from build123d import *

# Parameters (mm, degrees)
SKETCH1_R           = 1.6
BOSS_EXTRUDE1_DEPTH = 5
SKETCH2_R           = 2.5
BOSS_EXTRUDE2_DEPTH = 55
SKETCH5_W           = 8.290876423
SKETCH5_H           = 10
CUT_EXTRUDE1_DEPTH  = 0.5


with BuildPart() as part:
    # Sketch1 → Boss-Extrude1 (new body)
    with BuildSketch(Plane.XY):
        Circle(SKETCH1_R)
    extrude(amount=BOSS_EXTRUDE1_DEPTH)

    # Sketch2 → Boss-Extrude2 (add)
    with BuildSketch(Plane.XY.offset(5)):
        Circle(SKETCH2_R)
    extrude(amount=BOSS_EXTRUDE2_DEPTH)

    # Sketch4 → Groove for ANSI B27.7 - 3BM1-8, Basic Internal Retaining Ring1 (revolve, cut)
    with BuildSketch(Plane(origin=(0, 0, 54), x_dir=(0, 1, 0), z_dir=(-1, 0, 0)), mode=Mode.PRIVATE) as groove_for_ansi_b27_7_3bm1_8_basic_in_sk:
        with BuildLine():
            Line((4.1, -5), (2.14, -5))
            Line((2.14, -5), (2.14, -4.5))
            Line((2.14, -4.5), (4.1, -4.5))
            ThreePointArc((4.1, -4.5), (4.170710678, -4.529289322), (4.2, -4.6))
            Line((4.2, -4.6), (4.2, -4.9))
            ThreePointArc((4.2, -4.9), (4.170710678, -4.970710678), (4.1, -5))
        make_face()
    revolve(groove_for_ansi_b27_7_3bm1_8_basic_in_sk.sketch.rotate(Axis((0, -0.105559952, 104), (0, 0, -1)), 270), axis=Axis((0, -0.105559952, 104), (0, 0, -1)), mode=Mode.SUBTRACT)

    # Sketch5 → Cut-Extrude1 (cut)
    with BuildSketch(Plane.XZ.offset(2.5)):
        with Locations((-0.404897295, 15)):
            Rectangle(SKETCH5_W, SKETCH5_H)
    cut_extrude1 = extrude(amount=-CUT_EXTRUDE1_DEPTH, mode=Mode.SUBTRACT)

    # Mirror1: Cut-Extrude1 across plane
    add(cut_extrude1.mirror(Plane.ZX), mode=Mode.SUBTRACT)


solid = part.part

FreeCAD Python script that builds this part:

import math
import FreeCAD as App
import Part
import Sketcher
Q = App.Units.Quantity

doc = App.newDocument("Part")
body = doc.addObject("PartDesign::Body", "Body")

sketch1 = doc.addObject("Sketcher::SketchObject", "Sketch")
body.addObject(sketch1)
sketch1.AttachmentSupport = (doc.XY_Plane, [""])
sketch1.MapMode = "FlatFace"
sketch1.addGeometry(Part.Circle(App.Vector(0, 0, 0), App.Vector(0, 0, 1), 1.6), False)
sketch1.addConstraint(Sketcher.Constraint("Coincident", 0, 3, -1, 1))
sketch1.addConstraint(Sketcher.Constraint("Diameter", 0, Q("3.2 mm")))
pad1 = doc.addObject("PartDesign::Pad", "Pad")
body.addObject(pad1)
pad1.Profile = sketch1
pad1.Length = 5

sketch2 = doc.addObject("Sketcher::SketchObject", "Sketch001")
body.addObject(sketch2)
sketch2.AttachmentSupport = (doc.XY_Plane, [""])
sketch2.MapMode = "FlatFace"
sketch2.AttachmentOffset = App.Placement(App.Vector(0, 0, 5), App.Rotation())
sketch2.addGeometry(Part.Circle(App.Vector(0, 0, 0), App.Vector(0, 0, 1), 2.5), False)
sketch2.addConstraint(Sketcher.Constraint("Coincident", 0, 3, -1, 1))
sketch2.addConstraint(Sketcher.Constraint("Diameter", 0, Q("5 mm")))
pad2 = doc.addObject("PartDesign::Pad", "Pad001")
body.addObject(pad2)
pad2.Profile = sketch2
pad2.Length = 55

sketch3 = doc.addObject("Sketcher::SketchObject", "Sketch002")
body.addObject(sketch3)
sketch3.AttachmentSupport = (doc.YZ_Plane, [""])
sketch3.MapMode = "FlatFace"
sketch3.addGeometry(Part.LineSegment(App.Vector(2.14, 59, 0), App.Vector(4.1, 59, 0)), False)
sketch3.addGeometry(Part.ArcOfCircle(Part.Circle(App.Vector(4.1, 58.9, 0), App.Vector(0, 0, 1), 0.1), math.radians(0), math.radians(90)), False)
sketch3.addGeometry(Part.LineSegment(App.Vector(4.2, 58.9, 0), App.Vector(4.2, 58.6, 0)), False)
sketch3.addGeometry(Part.ArcOfCircle(Part.Circle(App.Vector(4.1, 58.6, 0), App.Vector(0, 0, 1), 0.1), math.radians(-90), math.radians(0)), False)
sketch3.addGeometry(Part.LineSegment(App.Vector(4.1, 58.5, 0), App.Vector(2.14, 58.5, 0)), False)
sketch3.addGeometry(Part.LineSegment(App.Vector(2.14, 58.5, 0), App.Vector(2.14, 59, 0)), False)
sketch3.addGeometry(Part.LineSegment(App.Vector(-0.11, 59, 0), App.Vector(-0.11, 58.5, 0)), True)
sketch3.addConstraint(Sketcher.Constraint("Tangent", 0, 2, 1, 2))
sketch3.addConstraint(Sketcher.Constraint("Tangent", 1, 1, 2, 1))
sketch3.addConstraint(Sketcher.Constraint("Tangent", 2, 2, 3, 2))
sketch3.addConstraint(Sketcher.Constraint("Tangent", 3, 1, 4, 1))
sketch3.addConstraint(Sketcher.Constraint("Coincident", 4, 2, 5, 1))
sketch3.addConstraint(Sketcher.Constraint("Coincident", 5, 2, 0, 1))
sketch3.addConstraint(Sketcher.Constraint("Horizontal", 0))
sketch3.addConstraint(Sketcher.Constraint("Vertical", 2))
sketch3.addConstraint(Sketcher.Constraint("Horizontal", 4))
sketch3.addConstraint(Sketcher.Constraint("Vertical", 5))
sketch3.addConstraint(Sketcher.Constraint("Vertical", 6))
sketch3.addConstraint(Sketcher.Constraint("Equal", 1, 3))
sketch3.addConstraint(Sketcher.Constraint("Horizontal", 5, 2, 6, 1))
sketch3.addConstraint(Sketcher.Constraint("Horizontal", 4, 2, 6, 2))
sketch3.addConstraint(Sketcher.Constraint("Radius", 1, Q("0.1 mm")))
sketch3.addConstraint(Sketcher.Constraint("DistanceY", 2, 2, 2, 1, Q("0.3 mm")))
sketch3.addConstraint(Sketcher.Constraint("DistanceY", -1, 1, 0, 2, Q("59 mm")))
sketch3.addConstraint(Sketcher.Constraint("DistanceX", 0, 1, 0, 2, Q("1.96 mm")))
sketch3.addConstraint(Sketcher.Constraint("DistanceX", -1, 1, 1, 3, Q("4.1 mm")))
sketch3.addConstraint(Sketcher.Constraint("DistanceX", 6, 1, -1, 1, Q("0.10556 mm")))
groove = doc.addObject("PartDesign::Groove", "Groove")
body.addObject(groove)
groove.Profile = sketch3
groove.ReferenceAxis = (sketch3, ["Axis0"])
groove.Angle = 360

sketch4 = doc.addObject("Sketcher::SketchObject", "Sketch003")
body.addObject(sketch4)
sketch4.AttachmentSupport = (doc.XZ_Plane, [""])
sketch4.MapMode = "FlatFace"
sketch4.AttachmentOffset = App.Placement(App.Vector(0, 0, 2.5), App.Rotation())
sketch4.addGeometry(Part.LineSegment(App.Vector(-5, 20, 0), App.Vector(-5, 10, 0)), False)
sketch4.addGeometry(Part.LineSegment(App.Vector(-5, 10, 0), App.Vector(4, 10, 0)), False)
sketch4.addGeometry(Part.LineSegment(App.Vector(4, 10, 0), App.Vector(4, 20, 0)), False)
sketch4.addGeometry(Part.LineSegment(App.Vector(4, 20, 0), App.Vector(-5, 20, 0)), False)
sketch4.addConstraint(Sketcher.Constraint("Coincident", 0, 2, 1, 1))
sketch4.addConstraint(Sketcher.Constraint("Coincident", 1, 2, 2, 1))
sketch4.addConstraint(Sketcher.Constraint("Coincident", 2, 2, 3, 1))
sketch4.addConstraint(Sketcher.Constraint("Coincident", 3, 2, 0, 1))
sketch4.addConstraint(Sketcher.Constraint("Vertical", 0))
sketch4.addConstraint(Sketcher.Constraint("Horizontal", 1))
sketch4.addConstraint(Sketcher.Constraint("Vertical", 2))
sketch4.addConstraint(Sketcher.Constraint("Horizontal", 3))
sketch4.addConstraint(Sketcher.Constraint("DistanceY", 0, 2, 0, 1, Q("10 mm")))
sketch4.addConstraint(Sketcher.Constraint("DistanceY", -1, 1, 0, 2, Q("10 mm")))
sketch4.addConstraint(Sketcher.Constraint("DistanceX", 1, 1, 1, 2, Q("8.290876 mm")))
sketch4.addConstraint(Sketcher.Constraint("DistanceX", -1, 1, 1, 2, Q("3.740541 mm")))
pocket1 = doc.addObject("PartDesign::Pocket", "Pocket")
body.addObject(pocket1)
pocket1.Profile = sketch4
pocket1.Length = 0.5
doc.recompute()

mirrored = doc.addObject("PartDesign::Mirrored", "Mirrored")
body.addObject(mirrored)
mirrored.Originals = [pocket1]
mirrored.MirrorPlane = (doc.XZ_Plane, [""])
body.Tip = mirrored

doc.recompute()
